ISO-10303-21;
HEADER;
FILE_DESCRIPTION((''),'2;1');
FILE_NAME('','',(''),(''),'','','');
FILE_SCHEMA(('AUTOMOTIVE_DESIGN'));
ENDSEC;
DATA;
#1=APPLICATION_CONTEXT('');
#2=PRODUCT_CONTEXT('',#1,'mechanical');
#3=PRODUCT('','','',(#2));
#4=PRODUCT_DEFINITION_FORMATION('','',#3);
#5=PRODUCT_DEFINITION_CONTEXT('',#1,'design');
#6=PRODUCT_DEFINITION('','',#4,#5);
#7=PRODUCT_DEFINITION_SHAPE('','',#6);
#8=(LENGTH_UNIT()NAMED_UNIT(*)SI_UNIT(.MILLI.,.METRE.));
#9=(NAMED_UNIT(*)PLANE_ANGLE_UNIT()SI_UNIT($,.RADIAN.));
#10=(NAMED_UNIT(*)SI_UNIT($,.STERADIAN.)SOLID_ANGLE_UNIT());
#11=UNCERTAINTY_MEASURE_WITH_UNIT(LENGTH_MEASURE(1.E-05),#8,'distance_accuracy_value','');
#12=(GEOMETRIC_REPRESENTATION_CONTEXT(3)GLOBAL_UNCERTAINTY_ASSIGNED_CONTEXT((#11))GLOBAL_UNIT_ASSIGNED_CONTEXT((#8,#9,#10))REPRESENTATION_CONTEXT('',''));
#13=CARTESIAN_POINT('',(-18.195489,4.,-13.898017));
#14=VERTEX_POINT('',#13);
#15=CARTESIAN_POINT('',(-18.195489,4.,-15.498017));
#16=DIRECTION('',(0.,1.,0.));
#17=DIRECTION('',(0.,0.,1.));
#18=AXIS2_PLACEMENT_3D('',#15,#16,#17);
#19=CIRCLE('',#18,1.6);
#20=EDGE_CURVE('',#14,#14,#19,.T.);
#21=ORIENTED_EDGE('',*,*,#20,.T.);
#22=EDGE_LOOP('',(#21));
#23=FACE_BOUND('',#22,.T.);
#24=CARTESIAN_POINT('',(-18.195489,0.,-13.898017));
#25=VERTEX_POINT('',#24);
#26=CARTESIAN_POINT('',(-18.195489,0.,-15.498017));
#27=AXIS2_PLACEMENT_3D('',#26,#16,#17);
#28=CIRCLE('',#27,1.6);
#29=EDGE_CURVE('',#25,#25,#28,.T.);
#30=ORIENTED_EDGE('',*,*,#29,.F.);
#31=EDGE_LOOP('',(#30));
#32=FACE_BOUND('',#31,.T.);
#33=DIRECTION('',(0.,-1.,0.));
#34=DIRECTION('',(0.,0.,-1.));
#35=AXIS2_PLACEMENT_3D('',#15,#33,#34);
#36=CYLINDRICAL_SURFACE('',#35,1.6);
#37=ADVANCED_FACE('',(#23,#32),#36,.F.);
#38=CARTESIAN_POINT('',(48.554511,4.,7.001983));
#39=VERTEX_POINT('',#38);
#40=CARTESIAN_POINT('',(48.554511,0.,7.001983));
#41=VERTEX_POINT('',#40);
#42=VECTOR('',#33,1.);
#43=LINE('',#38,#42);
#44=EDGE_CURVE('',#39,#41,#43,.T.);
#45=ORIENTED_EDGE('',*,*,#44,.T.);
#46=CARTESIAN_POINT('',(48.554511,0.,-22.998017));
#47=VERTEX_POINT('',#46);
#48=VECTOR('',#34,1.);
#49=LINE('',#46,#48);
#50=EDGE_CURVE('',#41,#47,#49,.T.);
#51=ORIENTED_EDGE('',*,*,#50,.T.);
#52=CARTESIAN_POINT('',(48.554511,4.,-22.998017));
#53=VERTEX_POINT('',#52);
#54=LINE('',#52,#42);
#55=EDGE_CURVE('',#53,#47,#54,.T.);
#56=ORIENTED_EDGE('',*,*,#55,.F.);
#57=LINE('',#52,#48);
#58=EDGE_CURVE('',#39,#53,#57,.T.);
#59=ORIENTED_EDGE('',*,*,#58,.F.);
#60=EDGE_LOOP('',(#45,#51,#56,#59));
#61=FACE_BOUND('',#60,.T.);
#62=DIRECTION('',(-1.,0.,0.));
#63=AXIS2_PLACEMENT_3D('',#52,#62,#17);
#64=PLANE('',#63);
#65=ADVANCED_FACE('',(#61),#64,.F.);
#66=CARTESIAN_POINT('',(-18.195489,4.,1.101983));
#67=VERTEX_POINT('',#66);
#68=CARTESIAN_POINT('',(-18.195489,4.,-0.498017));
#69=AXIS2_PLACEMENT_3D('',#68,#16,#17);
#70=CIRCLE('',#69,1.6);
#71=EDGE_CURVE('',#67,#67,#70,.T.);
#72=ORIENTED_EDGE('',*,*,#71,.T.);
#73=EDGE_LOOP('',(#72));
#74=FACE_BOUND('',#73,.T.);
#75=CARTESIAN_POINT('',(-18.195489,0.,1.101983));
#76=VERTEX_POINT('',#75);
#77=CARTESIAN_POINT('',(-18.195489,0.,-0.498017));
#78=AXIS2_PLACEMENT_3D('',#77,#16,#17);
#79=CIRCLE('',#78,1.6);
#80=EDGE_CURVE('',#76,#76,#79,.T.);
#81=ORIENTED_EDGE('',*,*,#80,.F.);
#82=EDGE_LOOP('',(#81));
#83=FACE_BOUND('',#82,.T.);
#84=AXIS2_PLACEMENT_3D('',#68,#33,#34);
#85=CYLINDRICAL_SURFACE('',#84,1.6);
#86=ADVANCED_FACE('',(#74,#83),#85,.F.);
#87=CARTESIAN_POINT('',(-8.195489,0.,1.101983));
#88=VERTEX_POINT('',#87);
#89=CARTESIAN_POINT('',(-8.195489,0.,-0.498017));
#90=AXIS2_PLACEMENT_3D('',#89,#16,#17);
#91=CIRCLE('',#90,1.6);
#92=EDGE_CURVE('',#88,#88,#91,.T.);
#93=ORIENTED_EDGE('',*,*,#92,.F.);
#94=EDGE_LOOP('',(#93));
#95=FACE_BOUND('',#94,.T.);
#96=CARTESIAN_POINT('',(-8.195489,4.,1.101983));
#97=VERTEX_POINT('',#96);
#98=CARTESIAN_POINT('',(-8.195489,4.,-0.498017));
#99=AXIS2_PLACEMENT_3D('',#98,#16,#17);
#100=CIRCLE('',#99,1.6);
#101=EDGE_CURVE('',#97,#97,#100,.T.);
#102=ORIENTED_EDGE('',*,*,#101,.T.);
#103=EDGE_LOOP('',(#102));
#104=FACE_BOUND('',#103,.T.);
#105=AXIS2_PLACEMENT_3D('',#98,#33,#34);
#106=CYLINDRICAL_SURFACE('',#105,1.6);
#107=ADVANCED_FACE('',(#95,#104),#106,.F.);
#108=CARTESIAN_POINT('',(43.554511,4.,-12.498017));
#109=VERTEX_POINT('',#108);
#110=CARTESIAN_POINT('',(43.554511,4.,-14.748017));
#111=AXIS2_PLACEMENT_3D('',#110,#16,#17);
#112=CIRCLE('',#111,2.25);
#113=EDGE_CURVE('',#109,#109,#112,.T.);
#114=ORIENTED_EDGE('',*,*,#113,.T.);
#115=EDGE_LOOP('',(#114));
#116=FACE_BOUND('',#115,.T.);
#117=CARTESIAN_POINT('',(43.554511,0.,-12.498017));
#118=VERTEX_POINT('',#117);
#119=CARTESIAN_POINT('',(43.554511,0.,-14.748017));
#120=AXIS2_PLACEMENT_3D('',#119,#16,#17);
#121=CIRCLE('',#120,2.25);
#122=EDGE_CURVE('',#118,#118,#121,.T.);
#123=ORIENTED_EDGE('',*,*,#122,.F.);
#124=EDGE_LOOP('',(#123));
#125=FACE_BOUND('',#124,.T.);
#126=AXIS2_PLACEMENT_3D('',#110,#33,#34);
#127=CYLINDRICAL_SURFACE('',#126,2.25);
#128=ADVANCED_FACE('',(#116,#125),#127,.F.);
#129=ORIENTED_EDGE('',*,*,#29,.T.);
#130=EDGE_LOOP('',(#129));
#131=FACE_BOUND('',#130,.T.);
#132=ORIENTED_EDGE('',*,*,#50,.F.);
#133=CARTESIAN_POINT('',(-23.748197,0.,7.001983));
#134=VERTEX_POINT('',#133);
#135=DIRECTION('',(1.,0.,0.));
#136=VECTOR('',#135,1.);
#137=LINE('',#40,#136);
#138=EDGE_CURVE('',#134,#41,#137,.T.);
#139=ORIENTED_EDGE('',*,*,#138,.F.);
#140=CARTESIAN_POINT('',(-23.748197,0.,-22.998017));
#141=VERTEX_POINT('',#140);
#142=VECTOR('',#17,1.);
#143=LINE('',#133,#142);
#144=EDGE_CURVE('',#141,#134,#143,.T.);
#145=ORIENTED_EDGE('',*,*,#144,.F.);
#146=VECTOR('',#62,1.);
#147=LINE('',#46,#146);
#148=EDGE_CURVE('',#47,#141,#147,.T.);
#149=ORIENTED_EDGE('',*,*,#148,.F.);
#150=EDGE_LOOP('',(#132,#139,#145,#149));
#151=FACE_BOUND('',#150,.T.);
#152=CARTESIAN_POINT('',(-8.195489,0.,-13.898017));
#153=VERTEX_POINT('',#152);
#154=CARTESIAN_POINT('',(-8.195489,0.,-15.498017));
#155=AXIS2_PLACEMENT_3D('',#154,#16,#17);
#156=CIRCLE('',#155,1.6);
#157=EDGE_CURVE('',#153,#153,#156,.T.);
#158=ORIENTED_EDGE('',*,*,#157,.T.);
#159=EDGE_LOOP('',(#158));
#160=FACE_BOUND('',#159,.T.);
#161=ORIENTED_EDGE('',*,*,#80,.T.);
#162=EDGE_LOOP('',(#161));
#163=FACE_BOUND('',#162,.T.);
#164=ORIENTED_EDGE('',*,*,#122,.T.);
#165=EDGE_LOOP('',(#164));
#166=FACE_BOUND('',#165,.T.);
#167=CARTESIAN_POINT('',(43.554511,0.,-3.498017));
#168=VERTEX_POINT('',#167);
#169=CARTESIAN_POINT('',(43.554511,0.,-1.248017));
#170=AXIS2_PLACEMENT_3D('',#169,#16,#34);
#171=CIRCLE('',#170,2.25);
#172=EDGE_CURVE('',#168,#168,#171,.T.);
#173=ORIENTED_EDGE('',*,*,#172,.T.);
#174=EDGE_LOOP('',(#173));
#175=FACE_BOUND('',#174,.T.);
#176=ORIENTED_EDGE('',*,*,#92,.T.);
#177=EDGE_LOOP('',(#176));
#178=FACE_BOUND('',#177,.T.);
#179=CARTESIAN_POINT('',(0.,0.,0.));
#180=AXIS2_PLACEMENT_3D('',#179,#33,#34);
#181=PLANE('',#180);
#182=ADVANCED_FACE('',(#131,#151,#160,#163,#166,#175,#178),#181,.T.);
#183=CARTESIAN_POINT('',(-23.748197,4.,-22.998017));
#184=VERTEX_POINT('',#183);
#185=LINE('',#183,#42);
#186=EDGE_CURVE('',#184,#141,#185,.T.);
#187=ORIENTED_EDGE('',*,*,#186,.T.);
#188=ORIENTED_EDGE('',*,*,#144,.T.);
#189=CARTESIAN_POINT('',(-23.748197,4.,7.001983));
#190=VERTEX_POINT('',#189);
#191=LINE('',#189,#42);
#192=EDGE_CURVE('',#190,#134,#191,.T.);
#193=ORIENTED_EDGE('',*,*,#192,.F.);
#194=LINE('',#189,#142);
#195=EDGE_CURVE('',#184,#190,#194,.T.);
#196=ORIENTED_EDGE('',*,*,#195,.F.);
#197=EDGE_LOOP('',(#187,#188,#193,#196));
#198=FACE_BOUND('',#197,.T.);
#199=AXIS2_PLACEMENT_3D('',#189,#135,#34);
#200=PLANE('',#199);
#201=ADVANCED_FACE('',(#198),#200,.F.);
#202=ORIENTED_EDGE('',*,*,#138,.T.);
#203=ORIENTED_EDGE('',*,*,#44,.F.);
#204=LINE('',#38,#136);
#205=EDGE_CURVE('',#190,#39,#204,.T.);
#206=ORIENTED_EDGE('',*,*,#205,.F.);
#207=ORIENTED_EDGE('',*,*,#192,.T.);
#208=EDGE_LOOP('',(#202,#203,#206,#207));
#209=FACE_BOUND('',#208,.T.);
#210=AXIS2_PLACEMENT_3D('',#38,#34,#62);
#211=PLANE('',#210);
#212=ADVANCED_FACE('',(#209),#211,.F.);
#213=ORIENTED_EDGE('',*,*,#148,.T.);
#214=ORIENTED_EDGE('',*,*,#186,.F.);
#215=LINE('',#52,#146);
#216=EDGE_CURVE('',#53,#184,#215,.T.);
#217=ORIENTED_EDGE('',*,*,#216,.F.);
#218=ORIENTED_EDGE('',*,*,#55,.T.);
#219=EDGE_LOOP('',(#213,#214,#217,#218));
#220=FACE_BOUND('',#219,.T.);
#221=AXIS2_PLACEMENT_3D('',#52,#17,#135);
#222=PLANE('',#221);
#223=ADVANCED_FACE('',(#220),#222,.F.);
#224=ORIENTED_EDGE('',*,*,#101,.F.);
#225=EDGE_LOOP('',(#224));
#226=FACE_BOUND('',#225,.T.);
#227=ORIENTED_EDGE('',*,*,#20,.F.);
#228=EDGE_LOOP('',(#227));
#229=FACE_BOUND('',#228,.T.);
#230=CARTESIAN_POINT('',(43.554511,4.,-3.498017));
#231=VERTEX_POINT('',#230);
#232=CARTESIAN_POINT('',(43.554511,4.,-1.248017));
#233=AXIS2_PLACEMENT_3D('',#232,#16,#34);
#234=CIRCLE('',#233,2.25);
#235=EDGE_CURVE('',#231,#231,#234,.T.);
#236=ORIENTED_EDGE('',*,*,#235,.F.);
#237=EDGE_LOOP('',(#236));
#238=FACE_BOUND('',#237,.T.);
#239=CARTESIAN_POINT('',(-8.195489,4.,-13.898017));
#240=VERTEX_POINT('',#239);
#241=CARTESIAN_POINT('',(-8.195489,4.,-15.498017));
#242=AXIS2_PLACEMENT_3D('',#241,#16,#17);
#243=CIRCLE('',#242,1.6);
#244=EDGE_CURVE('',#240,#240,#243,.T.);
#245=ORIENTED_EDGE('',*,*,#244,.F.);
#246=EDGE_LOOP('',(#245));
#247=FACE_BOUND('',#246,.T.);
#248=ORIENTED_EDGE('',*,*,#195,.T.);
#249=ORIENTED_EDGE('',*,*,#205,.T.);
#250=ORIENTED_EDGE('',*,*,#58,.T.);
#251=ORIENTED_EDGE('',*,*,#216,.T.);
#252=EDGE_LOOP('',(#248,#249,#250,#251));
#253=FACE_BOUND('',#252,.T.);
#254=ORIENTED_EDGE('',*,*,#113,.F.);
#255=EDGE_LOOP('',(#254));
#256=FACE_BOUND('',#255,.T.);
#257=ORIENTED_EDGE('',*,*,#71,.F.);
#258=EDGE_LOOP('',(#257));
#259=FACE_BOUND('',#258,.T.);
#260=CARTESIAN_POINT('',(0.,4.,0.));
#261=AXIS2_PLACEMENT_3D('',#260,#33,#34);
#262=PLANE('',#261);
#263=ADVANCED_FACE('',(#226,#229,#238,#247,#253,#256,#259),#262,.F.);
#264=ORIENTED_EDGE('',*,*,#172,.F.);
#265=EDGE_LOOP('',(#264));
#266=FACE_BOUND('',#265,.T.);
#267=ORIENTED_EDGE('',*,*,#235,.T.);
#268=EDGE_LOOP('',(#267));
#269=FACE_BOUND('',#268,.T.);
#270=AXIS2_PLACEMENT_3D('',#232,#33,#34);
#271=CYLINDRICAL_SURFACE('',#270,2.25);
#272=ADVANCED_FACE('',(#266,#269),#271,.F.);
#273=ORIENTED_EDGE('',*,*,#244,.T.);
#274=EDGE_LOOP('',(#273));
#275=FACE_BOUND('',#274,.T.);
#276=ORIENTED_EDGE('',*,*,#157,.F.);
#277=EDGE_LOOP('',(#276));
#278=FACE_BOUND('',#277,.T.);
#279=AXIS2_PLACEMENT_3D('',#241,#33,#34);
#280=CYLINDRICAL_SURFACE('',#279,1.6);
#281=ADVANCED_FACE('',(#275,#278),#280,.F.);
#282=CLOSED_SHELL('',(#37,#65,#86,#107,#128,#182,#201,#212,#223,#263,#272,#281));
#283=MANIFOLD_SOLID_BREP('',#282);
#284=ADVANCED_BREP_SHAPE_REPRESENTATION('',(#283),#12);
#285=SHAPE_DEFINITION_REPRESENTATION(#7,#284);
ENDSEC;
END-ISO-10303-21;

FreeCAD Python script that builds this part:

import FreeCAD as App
import Part
import Sketcher

V = App.Vector


def add_polygon(sketch, points):
    """Adds a closed chain of lines whose ends are joined by coincident constraints."""
    first, n = sketch.GeometryCount, len(points)
    for a, b in zip(points, points[1:] + points[:1]):
        sketch.addGeometry(Part.LineSegment(App.Vector(*a, 0), App.Vector(*b, 0)), False)
    for i in range(n):
        sketch.addConstraint(Sketcher.Constraint("Coincident", first + i, 2, first + (i + 1) % n, 1))

doc = App.newDocument("Part")
body = doc.addObject("PartDesign::Body", "Body")

# Sketch on XZ plane
sketch1 = body.newObject("Sketcher::SketchObject", "Sketch")
sketch1.AttachmentSupport = (doc.getObject("XZ_Plane"), [""])
sketch1.MapMode = "FlatFace"
add_polygon(sketch1, [(-23.748197, -22.998017), (-23.748197, 7.001983), (48.554511, 7.001983), (48.554511, -22.998017)])  # lines 0-3
sketch1.addGeometry(Part.Circle(V(-18.195489, -0.498017, 0), V(0, 0, 1), 1.6), False)  # 4
sketch1.addGeometry(Part.Circle(V(-8.195489, -0.498017, 0), V(0, 0, 1), 1.6), False)  # 5
sketch1.addGeometry(Part.Circle(V(43.554511, -1.248017, 0), V(0, 0, 1), 2.25), False)  # 6
sketch1.addGeometry(Part.Circle(V(-18.195489, -15.498017, 0), V(0, 0, 1), 1.6), False)  # 7
sketch1.addGeometry(Part.Circle(V(-8.195489, -15.498017, 0), V(0, 0, 1), 1.6), False)  # 8
sketch1.addGeometry(Part.Circle(V(43.554511, -14.748017, 0), V(0, 0, 1), 2.25), False)  # 9
sketch1.addConstraint(Sketcher.Constraint("Vertical", 0))
sketch1.addConstraint(Sketcher.Constraint("Horizontal", 1))
sketch1.addConstraint(Sketcher.Constraint("Vertical", 2))
sketch1.addConstraint(Sketcher.Constraint("Horizontal", 3))
sketch1.addConstraint(Sketcher.Constraint("Equal", 4, 5))
sketch1.addConstraint(Sketcher.Constraint("Equal", 5, 7))
sketch1.addConstraint(Sketcher.Constraint("Equal", 7, 8))
sketch1.addConstraint(Sketcher.Constraint("Equal", 6, 9))
sketch1.addConstraint(Sketcher.Constraint("Horizontal", 4, 3, 5, 3))
sketch1.addConstraint(Sketcher.Constraint("Horizontal", 7, 3, 8, 3))
sketch1.addConstraint(Sketcher.Constraint("Vertical", 4, 3, 7, 3))
sketch1.addConstraint(Sketcher.Constraint("Vertical", 5, 3, 8, 3))
sketch1.addConstraint(Sketcher.Constraint("Vertical", 6, 3, 9, 3))
sketch1.addConstraint(Sketcher.Constraint("Diameter", 4, 3.2))
sketch1.addConstraint(Sketcher.Constraint("Diameter", 6, 4.5))
sketch1.addConstraint(Sketcher.Constraint("DistanceY", 0, 1, 0, 2, 30.0))
sketch1.addConstraint(Sketcher.Constraint("DistanceX", 4, 3, 5, 3, 10.0))
sketch1.addConstraint(Sketcher.Constraint("DistanceY", 7, 3, 4, 3, 15.0))
sketch1.addConstraint(Sketcher.Constraint("DistanceX", 6, 3, 1, 2, 5.0))
sketch1.addConstraint(Sketcher.Constraint("DistanceY", 9, 3, 6, 3, 13.5))
sketch1.addConstraint(Sketcher.Constraint("DistanceY", 4, 3, 0, 2, 7.5))
sketch1.addConstraint(Sketcher.Constraint("DistanceX", 5, 3, 6, 3, 51.75))
sketch1.addConstraint(Sketcher.Constraint("DistanceY", 6, 3, 5, 3, 0.75))
sketch1.addConstraint(Sketcher.Constraint("DistanceX", 1, 1, 1, 2, 72.302708))
sketch1.addConstraint(Sketcher.Constraint("DistanceX", 4, 3, -1, 1, 18.195489))
sketch1.addConstraint(Sketcher.Constraint("DistanceY", 4, 3, -1, 1, 0.498017))
pad1 = body.newObject("PartDesign::Pad", "Pad")
pad1.Profile = sketch1
pad1.Length = 4
pad1.Reversed = True

doc.recompute()
